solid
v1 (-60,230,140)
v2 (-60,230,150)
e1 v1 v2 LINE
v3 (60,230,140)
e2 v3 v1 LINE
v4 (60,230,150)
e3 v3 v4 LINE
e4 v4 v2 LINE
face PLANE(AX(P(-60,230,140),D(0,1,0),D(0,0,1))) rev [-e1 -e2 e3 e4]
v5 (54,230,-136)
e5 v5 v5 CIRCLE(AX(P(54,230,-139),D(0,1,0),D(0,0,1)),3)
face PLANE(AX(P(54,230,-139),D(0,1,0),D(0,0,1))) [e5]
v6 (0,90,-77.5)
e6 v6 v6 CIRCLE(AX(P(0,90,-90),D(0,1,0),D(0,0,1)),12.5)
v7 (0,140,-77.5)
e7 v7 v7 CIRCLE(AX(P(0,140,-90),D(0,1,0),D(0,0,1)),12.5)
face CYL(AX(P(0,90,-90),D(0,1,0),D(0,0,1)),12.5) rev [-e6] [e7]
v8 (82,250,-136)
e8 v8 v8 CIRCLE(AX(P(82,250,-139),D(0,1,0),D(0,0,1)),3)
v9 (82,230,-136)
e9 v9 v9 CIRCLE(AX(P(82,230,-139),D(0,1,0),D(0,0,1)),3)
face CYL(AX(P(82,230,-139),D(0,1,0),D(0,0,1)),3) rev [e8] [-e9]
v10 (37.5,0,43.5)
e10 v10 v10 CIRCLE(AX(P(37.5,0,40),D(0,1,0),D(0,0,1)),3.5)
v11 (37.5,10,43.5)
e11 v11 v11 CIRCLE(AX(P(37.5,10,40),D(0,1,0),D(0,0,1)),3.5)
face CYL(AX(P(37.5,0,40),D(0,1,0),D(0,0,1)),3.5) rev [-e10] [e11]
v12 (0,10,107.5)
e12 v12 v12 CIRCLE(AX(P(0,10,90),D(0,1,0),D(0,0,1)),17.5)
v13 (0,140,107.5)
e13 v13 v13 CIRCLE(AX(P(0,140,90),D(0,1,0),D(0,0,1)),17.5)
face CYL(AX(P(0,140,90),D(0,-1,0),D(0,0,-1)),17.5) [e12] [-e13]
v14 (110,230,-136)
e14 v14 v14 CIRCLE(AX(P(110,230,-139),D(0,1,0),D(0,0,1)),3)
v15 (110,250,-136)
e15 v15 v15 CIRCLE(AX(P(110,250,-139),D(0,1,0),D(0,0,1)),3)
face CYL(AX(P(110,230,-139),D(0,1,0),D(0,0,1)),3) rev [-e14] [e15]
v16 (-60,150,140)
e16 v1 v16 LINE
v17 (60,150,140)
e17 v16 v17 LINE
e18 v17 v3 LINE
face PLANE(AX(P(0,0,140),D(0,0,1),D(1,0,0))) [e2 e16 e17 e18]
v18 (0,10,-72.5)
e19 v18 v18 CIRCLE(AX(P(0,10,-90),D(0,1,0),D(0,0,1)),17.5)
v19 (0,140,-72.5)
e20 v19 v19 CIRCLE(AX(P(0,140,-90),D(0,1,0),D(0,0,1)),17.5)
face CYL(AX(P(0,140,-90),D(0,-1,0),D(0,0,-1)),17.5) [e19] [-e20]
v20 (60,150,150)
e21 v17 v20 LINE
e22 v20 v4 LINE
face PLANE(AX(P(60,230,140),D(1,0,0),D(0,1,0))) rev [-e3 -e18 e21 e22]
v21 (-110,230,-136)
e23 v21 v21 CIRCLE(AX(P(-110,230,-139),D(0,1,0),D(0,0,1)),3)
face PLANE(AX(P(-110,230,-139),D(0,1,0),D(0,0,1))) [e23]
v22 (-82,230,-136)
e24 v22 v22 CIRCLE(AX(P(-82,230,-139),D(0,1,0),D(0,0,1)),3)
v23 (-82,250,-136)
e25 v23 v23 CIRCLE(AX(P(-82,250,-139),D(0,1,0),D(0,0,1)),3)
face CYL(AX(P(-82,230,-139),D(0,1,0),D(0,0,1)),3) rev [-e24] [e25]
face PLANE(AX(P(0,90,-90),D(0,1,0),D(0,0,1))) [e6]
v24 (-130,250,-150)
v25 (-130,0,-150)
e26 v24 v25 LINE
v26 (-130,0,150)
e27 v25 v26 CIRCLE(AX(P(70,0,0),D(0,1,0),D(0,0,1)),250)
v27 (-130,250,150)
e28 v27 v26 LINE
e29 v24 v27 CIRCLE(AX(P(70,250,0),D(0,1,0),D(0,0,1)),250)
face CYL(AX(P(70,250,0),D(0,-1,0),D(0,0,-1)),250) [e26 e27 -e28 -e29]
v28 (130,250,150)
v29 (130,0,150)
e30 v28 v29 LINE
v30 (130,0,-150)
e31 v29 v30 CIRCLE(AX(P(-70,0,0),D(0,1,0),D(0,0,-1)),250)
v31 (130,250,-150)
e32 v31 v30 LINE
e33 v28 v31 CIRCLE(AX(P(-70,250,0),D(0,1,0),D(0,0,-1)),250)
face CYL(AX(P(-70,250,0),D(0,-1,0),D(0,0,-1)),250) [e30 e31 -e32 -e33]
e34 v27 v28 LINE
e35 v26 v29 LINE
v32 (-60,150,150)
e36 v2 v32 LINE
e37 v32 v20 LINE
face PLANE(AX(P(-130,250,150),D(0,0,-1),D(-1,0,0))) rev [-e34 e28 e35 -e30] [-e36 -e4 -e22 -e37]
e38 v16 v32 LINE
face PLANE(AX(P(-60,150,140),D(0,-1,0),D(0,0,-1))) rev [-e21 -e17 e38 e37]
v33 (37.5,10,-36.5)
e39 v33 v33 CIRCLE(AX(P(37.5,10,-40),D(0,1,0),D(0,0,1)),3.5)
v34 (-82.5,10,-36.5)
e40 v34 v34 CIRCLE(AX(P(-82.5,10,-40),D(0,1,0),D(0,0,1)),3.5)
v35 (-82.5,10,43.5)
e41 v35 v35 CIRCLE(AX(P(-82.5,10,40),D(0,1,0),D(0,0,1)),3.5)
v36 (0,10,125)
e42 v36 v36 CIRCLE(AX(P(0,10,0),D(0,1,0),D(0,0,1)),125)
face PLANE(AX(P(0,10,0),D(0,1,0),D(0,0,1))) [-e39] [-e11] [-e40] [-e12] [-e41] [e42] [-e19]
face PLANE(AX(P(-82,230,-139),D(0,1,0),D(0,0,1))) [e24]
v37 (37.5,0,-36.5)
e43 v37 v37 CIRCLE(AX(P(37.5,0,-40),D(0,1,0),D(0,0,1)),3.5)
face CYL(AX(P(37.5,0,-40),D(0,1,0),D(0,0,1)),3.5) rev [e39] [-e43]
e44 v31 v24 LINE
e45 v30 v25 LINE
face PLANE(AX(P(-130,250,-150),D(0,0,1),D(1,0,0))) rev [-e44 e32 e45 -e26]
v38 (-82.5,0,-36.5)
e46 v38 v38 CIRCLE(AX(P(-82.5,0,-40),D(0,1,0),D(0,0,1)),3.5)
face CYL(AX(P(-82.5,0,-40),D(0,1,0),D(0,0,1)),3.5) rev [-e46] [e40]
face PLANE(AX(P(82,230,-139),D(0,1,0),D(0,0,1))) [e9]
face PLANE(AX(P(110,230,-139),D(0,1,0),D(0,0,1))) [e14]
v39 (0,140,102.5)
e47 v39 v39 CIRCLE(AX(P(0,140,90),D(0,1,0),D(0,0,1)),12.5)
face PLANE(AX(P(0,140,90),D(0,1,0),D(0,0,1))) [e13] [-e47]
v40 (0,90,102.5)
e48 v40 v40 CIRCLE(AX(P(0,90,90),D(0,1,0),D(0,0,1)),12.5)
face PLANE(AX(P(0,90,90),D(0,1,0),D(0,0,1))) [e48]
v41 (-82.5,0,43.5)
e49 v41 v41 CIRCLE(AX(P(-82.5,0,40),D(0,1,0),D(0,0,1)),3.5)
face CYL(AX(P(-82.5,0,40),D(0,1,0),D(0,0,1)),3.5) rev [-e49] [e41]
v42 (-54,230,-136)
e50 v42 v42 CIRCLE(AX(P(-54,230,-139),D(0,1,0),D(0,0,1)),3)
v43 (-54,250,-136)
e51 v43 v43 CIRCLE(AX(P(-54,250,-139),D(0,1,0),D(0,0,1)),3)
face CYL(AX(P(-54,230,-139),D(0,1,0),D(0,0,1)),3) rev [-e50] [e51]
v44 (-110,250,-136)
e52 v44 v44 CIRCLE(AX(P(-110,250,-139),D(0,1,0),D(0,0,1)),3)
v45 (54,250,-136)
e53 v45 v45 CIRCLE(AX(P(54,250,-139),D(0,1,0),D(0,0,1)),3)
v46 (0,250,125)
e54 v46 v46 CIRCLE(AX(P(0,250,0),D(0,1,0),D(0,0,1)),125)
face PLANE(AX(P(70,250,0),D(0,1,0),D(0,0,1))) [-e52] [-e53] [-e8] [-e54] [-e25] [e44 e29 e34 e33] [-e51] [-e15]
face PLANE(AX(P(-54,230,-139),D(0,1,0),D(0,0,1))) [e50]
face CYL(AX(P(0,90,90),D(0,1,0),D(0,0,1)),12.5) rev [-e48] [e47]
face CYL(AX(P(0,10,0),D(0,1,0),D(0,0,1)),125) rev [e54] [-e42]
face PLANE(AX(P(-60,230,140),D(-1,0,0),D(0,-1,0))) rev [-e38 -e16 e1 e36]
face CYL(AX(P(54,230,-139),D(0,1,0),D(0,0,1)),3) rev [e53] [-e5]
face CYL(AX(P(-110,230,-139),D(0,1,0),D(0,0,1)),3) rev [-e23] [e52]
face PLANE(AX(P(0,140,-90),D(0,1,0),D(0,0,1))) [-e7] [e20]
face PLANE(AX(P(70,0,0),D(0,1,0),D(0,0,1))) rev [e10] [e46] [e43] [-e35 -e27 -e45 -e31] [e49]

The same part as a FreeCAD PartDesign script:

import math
import FreeCAD as App
import Part
import Sketcher


def add_polygon(sketch, points):
    """Adds a closed chain of lines whose ends are joined by coincident constraints."""
    first, n = sketch.GeometryCount, len(points)
    for a, b in zip(points, points[1:] + points[:1]):
        sketch.addGeometry(Part.LineSegment(App.Vector(*a, 0), App.Vector(*b, 0)), False)
    for i in range(n):
        sketch.addConstraint(Sketcher.Constraint("Coincident", first + i, 2, first + (i + 1) % n, 1))

doc = App.newDocument("Part")
body = doc.addObject("PartDesign::Body", "Body")

sketch1 = body.newObject("Sketcher::SketchObject", "Sketch")
sketch1.AttachmentSupport = (doc.getObject("XZ_Plane"), [""])
sketch1.MapMode = "FlatFace"
sketch1.addGeometry(Part.LineSegment(App.Vector(130, -150, 0), App.Vector(-130, -150, 0)), False)
sketch1.addGeometry(Part.ArcOfCircle(Part.Circle(App.Vector(70, 0, 0), App.Vector(0, 0, 1), 250), math.radians(143), math.radians(217)), False)
sketch1.addGeometry(Part.LineSegment(App.Vector(-130, 150, 0), App.Vector(130, 150, 0)), False)
sketch1.addGeometry(Part.ArcOfCircle(Part.Circle(App.Vector(-70, 0, 0), App.Vector(0, 0, 1), 250), math.radians(-37), math.radians(37)), False)
sketch1.addConstraint(Sketcher.Constraint("Coincident", 0, 2, 1, 2))
sketch1.addConstraint(Sketcher.Constraint("Coincident", 1, 1, 2, 1))
sketch1.addConstraint(Sketcher.Constraint("Coincident", 2, 2, 3, 2))
sketch1.addConstraint(Sketcher.Constraint("Coincident", 3, 1, 0, 1))
sketch1.addConstraint(Sketcher.Constraint("Horizontal", 0))
sketch1.addConstraint(Sketcher.Constraint("Horizontal", 2))
sketch1.addConstraint(Sketcher.Constraint("Equal", 1, 3))
sketch1.addConstraint(Sketcher.Constraint("Symmetric", 1, 3, 3, 3, -1, 1))
sketch1.addConstraint(Sketcher.Constraint("Symmetric", 0, 2, 1, 1, -1))
sketch1.addConstraint(Sketcher.Constraint("Radius", 1, 250.0))
sketch1.addConstraint(Sketcher.Constraint("DistanceX", 0, 2, 0, 1, 260.0))
sketch1.addConstraint(Sketcher.Constraint("DistanceX", -1, 1, 1, 3, 70.0))
pad1 = body.newObject("PartDesign::Pad", "Pad")
pad1.Profile = sketch1
pad1.Length = 250
pad1.Reversed = True

sketch2 = body.newObject("Sketcher::SketchObject", "Sketch001")
sketch2.AttachmentSupport = (doc.getObject("XZ_Plane"), [""])
sketch2.MapMode = "FlatFace"
sketch2.AttachmentOffset = App.Placement(App.Vector(0, 0, -250), App.Rotation())
sketch2.addGeometry(Part.Circle(App.Vector(0, 0, 0), App.Vector(0, 0, 1), 125), False)
sketch2.addConstraint(Sketcher.Constraint("Coincident", 0, 3, -1, 1))
sketch2.addConstraint(Sketcher.Constraint("Diameter", 0, 250.0))
pocket1 = body.newObject("PartDesign::Pocket", "Pocket")
pocket1.Profile = sketch2
pocket1.Length = 240
pocket1.Reversed = True

sketch3 = body.newObject("Sketcher::SketchObject", "Sketch002")
sketch3.AttachmentSupport = (doc.getObject("XY_Plane"), [""])
sketch3.MapMode = "FlatFace"
sketch3.AttachmentOffset = App.Placement(App.Vector(0, 0, 150), App.Rotation())
add_polygon(sketch3, [(-60, 230), (-60, 150), (60, 150), (60, 230)])
sketch3.addConstraint(Sketcher.Constraint("Vertical", 0))
sketch3.addConstraint(Sketcher.Constraint("Horizontal", 1))
sketch3.addConstraint(Sketcher.Constraint("Vertical", 2))
sketch3.addConstraint(Sketcher.Constraint("Horizontal", 3))
sketch3.addConstraint(Sketcher.Constraint("DistanceX", 1, 1, 1, 2, 120.0))
sketch3.addConstraint(Sketcher.Constraint("DistanceY", 0, 2, 0, 1, 80.0))
sketch3.addConstraint(Sketcher.Constraint("DistanceX", 0, 2, -1, 1, 60.0))
sketch3.addConstraint(Sketcher.Constraint("DistanceY", -1, 1, 0, 2, 150.0))
pocket2 = body.newObject("PartDesign::Pocket", "Pocket001")
pocket2.Profile = sketch3
pocket2.Length = 10

sketch4 = body.newObject("Sketcher::SketchObject", "Sketch003")
sketch4.AttachmentSupport = (doc.getObject("XZ_Plane"), [""])
sketch4.MapMode = "FlatFace"
sketch4.AttachmentOffset = App.Placement(App.Vector(0, 0, -250), App.Rotation())
sketch4.addGeometry(Part.Circle(App.Vector(-110, -139, 0), App.Vector(0, 0, 1), 3), False)
sketch4.addGeometry(Part.Circle(App.Vector(-82, -139, 0), App.Vector(0, 0, 1), 3), False)
sketch4.addGeometry(Part.Circle(App.Vector(-54, -139, 0), App.Vector(0, 0, 1), 3), False)
sketch4.addGeometry(Part.Circle(App.Vector(54, -139, 0), App.Vector(0, 0, 1), 3), False)
sketch4.addGeometry(Part.Circle(App.Vector(82, -139, 0), App.Vector(0, 0, 1), 3), False)
sketch4.addGeometry(Part.Circle(App.Vector(110, -139, 0), App.Vector(0, 0, 1), 3), False)
sketch4.addConstraint(Sketcher.Constraint("Equal", 0, 1))
sketch4.addConstraint(Sketcher.Constraint("Equal", 1, 2))
sketch4.addConstraint(Sketcher.Constraint("Equal", 2, 3))
sketch4.addConstraint(Sketcher.Constraint("Equal", 3, 4))
sketch4.addConstraint(Sketcher.Constraint("Equal", 4, 5))
sketch4.addConstraint(Sketcher.Constraint("Symmetric", 2, 3, 3, 3, -2))
sketch4.addConstraint(Sketcher.Constraint("Symmetric", 1, 3, 4, 3, -2))
sketch4.addConstraint(Sketcher.Constraint("Symmetric", 0, 3, 5, 3, -2))
sketch4.addConstraint(Sketcher.Constraint("Horizontal", 0, 3, 1, 3))
sketch4.addConstraint(Sketcher.Constraint("Horizontal", 1, 3, 2, 3))
sketch4.addConstraint(Sketcher.Constraint("Diameter", 0, 6.0))
sketch4.addConstraint(Sketcher.Constraint("DistanceX", 0, 3, -1, 1, 110.0))
sketch4.addConstraint(Sketcher.Constraint("DistanceY", 0, 3, -1, 1, 139.0))
sketch4.addConstraint(Sketcher.Constraint("DistanceX", 1, 3, -1, 1, 82.0))
sketch4.addConstraint(Sketcher.Constraint("DistanceX", 2, 3, -1, 1, 54.0))
pocket3 = body.newObject("PartDesign::Pocket", "Pocket002")
pocket3.Profile = sketch4
pocket3.Length = 20
pocket3.Reversed = True

sketch5 = body.newObject("Sketcher::SketchObject", "Sketch004")
sketch5.AttachmentSupport = (doc.getObject("XZ_Plane"), [""])
sketch5.MapMode = "FlatFace"
sketch5.AttachmentOffset = App.Placement(App.Vector(0, 0, -10), App.Rotation())
sketch5.addGeometry(Part.Circle(App.Vector(-82.5, -40, 0), App.Vector(0, 0, 1), 3.5), False)
sketch5.addGeometry(Part.Circle(App.Vector(37.5, -40, 0), App.Vector(0, 0, 1), 3.5), False)
sketch5.addGeometry(Part.Circle(App.Vector(37.5, 40, 0), App.Vector(0, 0, 1), 3.5), False)
sketch5.addGeometry(Part.Circle(App.Vector(-82.5, 40, 0), App.Vector(0, 0, 1), 3.5), False)
sketch5.addConstraint(Sketcher.Constraint("Equal", 0, 1))
sketch5.addConstraint(Sketcher.Constraint("Equal", 1, 2))
sketch5.addConstraint(Sketcher.Constraint("Equal", 2, 3))
sketch5.addConstraint(Sketcher.Constraint("Symmetric", 1, 3, 2, 3, -1))
sketch5.addConstraint(Sketcher.Constraint("Symmetric", 0, 3, 3, 3, -1))
sketch5.addConstraint(Sketcher.Constraint("Horizontal", 0, 3, 1, 3))
sketch5.addConstraint(Sketcher.Constraint("Diameter", 0, 7.0))
sketch5.addConstraint(Sketcher.Constraint("DistanceY", 0, 3, -1, 1, 40.0))
sketch5.addConstraint(Sketcher.Constraint("DistanceX", 0, 3, 1, 3, 120.0))
sketch5.addConstraint(Sketcher.Constraint("DistanceX", 0, 3, -1, 1, 82.5))
pocket4 = body.newObject("PartDesign::Pocket", "Pocket003")
pocket4.Profile = sketch5
pocket4.Type = "ThroughAll"
pocket4.Reversed = True

sketch6 = body.newObject("Sketcher::SketchObject", "Sketch005")
sketch6.AttachmentSupport = (doc.getObject("XZ_Plane"), [""])
sketch6.MapMode = "FlatFace"
sketch6.AttachmentOffset = App.Placement(App.Vector(0, 0, -10), App.Rotation())
sketch6.addGeometry(Part.Circle(App.Vector(0, -90, 0), App.Vector(0, 0, 1), 18), False)
sketch6.addGeometry(Part.Circle(App.Vector(0, 90, 0), App.Vector(0, 0, 1), 18), False)
sketch6.addConstraint(Sketcher.Constraint("Equal", 0, 1))
sketch6.addConstraint(Sketcher.Constraint("Symmetric", 0, 3, 1, 3, -1, 1))
sketch6.addConstraint(Sketcher.Constraint("PointOnObject", 0, 3, -2))
sketch6.addConstraint(Sketcher.Constraint("Diameter", 0, 35.0))
sketch6.addConstraint(Sketcher.Constraint("DistanceY", 0, 3, -1, 1, 90.0))
pad2 = body.newObject("PartDesign::Pad", "Pad001")
pad2.Profile = sketch6
pad2.Length = 130
pad2.Reversed = True

sketch7 = body.newObject("Sketcher::SketchObject", "Sketch006")
sketch7.AttachmentSupport = (doc.getObject("XZ_Plane"), [""])
sketch7.MapMode = "FlatFace"
sketch7.AttachmentOffset = App.Placement(App.Vector(0, 0, -140), App.Rotation())
sketch7.addGeometry(Part.Circle(App.Vector(0, 90, 0), App.Vector(0, 0, 1), 12), False)
sketch7.addGeometry(Part.Circle(App.Vector(0, -90, 0), App.Vector(0, 0, 1), 12), False)
sketch7.addConstraint(Sketcher.Constraint("Equal", 0, 1))
sketch7.addConstraint(Sketcher.Constraint("Symmetric", 0, 3, 1, 3, -1, 1))
sketch7.addConstraint(Sketcher.Constraint("PointOnObject", 0, 3, -2))
sketch7.addConstraint(Sketcher.Constraint("Diameter", 0, 25.0))
sketch7.addConstraint(Sketcher.Constraint("DistanceY", -1, 1, 0, 3, 90.0))
pocket5 = body.newObject("PartDesign::Pocket", "Pocket004")
pocket5.Profile = sketch7
pocket5.Length = 50
pocket5.Reversed = True

doc.recompute()
